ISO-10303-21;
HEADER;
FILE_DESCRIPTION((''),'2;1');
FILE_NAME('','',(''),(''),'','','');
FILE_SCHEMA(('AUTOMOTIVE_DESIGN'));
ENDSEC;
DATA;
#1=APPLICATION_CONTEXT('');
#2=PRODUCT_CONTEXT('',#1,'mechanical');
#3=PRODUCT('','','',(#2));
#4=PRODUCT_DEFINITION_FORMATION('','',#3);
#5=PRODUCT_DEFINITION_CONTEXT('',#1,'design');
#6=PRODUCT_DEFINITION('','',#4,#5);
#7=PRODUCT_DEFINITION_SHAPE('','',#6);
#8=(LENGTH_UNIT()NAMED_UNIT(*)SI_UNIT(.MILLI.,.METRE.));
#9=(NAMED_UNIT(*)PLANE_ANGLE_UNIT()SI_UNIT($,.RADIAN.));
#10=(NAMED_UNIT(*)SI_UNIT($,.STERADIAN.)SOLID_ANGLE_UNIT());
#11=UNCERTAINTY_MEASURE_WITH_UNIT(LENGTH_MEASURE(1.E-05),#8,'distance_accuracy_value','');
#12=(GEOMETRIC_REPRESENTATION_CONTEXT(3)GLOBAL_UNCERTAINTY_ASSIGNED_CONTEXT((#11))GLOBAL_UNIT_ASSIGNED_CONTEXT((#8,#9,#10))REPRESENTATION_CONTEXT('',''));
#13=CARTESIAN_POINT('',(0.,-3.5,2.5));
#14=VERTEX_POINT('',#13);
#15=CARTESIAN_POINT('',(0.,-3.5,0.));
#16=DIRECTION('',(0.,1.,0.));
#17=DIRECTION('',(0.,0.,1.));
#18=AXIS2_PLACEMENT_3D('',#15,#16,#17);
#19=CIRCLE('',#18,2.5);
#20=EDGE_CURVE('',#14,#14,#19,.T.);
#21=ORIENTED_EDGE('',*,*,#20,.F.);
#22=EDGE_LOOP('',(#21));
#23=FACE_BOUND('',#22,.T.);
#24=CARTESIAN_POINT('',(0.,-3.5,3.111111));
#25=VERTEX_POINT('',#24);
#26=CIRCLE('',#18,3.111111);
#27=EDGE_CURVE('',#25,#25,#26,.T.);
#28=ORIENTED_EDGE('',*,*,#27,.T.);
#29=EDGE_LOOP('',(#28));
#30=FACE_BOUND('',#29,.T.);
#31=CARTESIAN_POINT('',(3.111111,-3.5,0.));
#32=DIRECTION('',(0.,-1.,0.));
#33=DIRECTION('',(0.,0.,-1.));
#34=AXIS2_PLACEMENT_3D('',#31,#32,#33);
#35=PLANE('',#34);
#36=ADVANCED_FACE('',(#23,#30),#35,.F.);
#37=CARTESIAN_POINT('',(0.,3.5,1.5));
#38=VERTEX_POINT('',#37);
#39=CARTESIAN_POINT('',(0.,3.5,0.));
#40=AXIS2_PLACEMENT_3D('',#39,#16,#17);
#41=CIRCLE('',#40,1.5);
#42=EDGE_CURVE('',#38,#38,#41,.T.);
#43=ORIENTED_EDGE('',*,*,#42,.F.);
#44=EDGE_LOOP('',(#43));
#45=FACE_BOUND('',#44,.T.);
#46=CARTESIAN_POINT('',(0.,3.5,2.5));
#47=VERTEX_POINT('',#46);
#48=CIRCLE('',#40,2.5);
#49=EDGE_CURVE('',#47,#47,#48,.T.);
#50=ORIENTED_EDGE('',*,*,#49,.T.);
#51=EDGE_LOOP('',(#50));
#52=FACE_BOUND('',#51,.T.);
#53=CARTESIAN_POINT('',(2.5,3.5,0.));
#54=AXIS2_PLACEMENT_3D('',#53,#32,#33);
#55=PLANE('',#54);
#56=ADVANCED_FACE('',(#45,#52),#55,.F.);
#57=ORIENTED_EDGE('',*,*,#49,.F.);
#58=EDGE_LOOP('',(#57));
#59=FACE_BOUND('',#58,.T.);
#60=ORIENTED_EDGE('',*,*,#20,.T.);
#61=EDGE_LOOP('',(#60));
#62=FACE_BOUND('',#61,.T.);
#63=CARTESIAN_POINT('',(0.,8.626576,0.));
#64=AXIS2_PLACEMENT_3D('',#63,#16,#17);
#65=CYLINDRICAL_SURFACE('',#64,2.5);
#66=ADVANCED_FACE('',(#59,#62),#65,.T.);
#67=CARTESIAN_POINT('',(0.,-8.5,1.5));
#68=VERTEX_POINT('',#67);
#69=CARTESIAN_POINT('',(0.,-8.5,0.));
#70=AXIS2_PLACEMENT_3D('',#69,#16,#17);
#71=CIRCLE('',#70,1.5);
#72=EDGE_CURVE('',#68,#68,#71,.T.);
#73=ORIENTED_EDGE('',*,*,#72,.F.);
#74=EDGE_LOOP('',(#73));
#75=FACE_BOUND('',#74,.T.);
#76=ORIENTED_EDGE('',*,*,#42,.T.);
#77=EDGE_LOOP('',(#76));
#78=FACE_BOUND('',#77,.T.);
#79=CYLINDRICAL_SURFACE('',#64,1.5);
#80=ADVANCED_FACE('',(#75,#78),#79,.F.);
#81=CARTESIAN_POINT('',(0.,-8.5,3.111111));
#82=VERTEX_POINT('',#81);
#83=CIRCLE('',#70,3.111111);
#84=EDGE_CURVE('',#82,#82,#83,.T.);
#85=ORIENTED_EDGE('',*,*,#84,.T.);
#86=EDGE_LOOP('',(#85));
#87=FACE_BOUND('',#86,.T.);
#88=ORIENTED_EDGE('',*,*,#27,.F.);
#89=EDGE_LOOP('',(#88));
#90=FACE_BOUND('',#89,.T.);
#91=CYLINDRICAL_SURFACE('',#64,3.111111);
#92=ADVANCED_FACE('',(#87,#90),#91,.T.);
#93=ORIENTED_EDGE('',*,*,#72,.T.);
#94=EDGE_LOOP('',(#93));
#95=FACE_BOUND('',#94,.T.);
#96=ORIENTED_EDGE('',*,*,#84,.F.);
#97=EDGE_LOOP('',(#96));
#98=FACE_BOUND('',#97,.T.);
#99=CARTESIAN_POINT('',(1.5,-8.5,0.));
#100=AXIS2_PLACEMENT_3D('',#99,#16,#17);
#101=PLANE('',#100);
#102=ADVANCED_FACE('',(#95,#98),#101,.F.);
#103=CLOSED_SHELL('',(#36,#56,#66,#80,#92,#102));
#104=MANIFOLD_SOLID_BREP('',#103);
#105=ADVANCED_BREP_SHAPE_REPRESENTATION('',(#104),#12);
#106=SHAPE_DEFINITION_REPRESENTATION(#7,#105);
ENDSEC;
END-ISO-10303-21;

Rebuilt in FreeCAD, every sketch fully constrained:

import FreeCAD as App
import Part
import Sketcher


def add_polygon(sketch, points):
    """Adds a closed chain of lines whose ends are joined by coincident constraints."""
    first, n = sketch.GeometryCount, len(points)
    for a, b in zip(points, points[1:] + points[:1]):
        sketch.addGeometry(Part.LineSegment(App.Vector(*a, 0), App.Vector(*b, 0)), False)
    for i in range(n):
        sketch.addConstraint(Sketcher.Constraint("Coincident", first + i, 2, first + (i + 1) % n, 1))

doc = App.newDocument("Part")
params = doc.addObject("Spreadsheet::Sheet", "Params")
for row, (alias, value) in enumerate([
    ("sketch1_width", "1 mm"),
    ("sketch1_height", "12 mm"),
    ("sketch1_height2", "5 mm"),
    ("revolution_angle", "360 deg"),
], start=1):
    params.set(f"A{row}", alias)
    params.set(f"B{row}", "=" + value)
    params.setAlias(f"B{row}", alias)

body = doc.addObject("PartDesign::Body", "Body")

# Sketch on XY plane
sketch1 = doc.addObject("Sketcher::SketchObject", "Sketch")
body.addObject(sketch1)
sketch1.AttachmentSupport = (doc.XY_Plane, [""])
sketch1.MapMode = "FlatFace"
add_polygon(sketch1, [(1.5, 3.5), (1.5, -8.5), (3.1, -8.5), (3.1, -3.5), (2.5, -3.5), (2.5, 3.5)])  # lines 0-5
sketch1.addConstraint([
    Sketcher.Constraint("Vertical", 0),
    Sketcher.Constraint("Horizontal", 1),
    Sketcher.Constraint("Vertical", 2),
    Sketcher.Constraint("Horizontal", 3),
    Sketcher.Constraint("Vertical", 4),
    Sketcher.Constraint("Horizontal", 5),
    Sketcher.Constraint("DistanceX", 5, 2, 5, 1, 1.0),
    Sketcher.Constraint("DistanceY", 0, 2, 0, 1, 12.0),
    Sketcher.Constraint("DistanceY", 2, 1, 2, 2, 5.0),
    Sketcher.Constraint("DistanceX", -1, 1, 0, 2, 1.5),
    Sketcher.Constraint("DistanceY", 0, 2, -1, 1, 8.5),
    Sketcher.Constraint("DistanceX", 1, 1, 1, 2, 1.611111),
])
sketch1.setExpression("Constraints[12]", "Params.sketch1_width")
sketch1.setExpression("Constraints[13]", "Params.sketch1_height")
sketch1.setExpression("Constraints[14]", "Params.sketch1_height2")
revolution = doc.addObject("PartDesign::Revolution", "Revolution")
body.addObject(revolution)
revolution.Profile = sketch1
revolution.ReferenceAxis = (sketch1, ["V_Axis"])
revolution.setExpression("Angle", "Params.revolution_angle")

doc.recompute()
